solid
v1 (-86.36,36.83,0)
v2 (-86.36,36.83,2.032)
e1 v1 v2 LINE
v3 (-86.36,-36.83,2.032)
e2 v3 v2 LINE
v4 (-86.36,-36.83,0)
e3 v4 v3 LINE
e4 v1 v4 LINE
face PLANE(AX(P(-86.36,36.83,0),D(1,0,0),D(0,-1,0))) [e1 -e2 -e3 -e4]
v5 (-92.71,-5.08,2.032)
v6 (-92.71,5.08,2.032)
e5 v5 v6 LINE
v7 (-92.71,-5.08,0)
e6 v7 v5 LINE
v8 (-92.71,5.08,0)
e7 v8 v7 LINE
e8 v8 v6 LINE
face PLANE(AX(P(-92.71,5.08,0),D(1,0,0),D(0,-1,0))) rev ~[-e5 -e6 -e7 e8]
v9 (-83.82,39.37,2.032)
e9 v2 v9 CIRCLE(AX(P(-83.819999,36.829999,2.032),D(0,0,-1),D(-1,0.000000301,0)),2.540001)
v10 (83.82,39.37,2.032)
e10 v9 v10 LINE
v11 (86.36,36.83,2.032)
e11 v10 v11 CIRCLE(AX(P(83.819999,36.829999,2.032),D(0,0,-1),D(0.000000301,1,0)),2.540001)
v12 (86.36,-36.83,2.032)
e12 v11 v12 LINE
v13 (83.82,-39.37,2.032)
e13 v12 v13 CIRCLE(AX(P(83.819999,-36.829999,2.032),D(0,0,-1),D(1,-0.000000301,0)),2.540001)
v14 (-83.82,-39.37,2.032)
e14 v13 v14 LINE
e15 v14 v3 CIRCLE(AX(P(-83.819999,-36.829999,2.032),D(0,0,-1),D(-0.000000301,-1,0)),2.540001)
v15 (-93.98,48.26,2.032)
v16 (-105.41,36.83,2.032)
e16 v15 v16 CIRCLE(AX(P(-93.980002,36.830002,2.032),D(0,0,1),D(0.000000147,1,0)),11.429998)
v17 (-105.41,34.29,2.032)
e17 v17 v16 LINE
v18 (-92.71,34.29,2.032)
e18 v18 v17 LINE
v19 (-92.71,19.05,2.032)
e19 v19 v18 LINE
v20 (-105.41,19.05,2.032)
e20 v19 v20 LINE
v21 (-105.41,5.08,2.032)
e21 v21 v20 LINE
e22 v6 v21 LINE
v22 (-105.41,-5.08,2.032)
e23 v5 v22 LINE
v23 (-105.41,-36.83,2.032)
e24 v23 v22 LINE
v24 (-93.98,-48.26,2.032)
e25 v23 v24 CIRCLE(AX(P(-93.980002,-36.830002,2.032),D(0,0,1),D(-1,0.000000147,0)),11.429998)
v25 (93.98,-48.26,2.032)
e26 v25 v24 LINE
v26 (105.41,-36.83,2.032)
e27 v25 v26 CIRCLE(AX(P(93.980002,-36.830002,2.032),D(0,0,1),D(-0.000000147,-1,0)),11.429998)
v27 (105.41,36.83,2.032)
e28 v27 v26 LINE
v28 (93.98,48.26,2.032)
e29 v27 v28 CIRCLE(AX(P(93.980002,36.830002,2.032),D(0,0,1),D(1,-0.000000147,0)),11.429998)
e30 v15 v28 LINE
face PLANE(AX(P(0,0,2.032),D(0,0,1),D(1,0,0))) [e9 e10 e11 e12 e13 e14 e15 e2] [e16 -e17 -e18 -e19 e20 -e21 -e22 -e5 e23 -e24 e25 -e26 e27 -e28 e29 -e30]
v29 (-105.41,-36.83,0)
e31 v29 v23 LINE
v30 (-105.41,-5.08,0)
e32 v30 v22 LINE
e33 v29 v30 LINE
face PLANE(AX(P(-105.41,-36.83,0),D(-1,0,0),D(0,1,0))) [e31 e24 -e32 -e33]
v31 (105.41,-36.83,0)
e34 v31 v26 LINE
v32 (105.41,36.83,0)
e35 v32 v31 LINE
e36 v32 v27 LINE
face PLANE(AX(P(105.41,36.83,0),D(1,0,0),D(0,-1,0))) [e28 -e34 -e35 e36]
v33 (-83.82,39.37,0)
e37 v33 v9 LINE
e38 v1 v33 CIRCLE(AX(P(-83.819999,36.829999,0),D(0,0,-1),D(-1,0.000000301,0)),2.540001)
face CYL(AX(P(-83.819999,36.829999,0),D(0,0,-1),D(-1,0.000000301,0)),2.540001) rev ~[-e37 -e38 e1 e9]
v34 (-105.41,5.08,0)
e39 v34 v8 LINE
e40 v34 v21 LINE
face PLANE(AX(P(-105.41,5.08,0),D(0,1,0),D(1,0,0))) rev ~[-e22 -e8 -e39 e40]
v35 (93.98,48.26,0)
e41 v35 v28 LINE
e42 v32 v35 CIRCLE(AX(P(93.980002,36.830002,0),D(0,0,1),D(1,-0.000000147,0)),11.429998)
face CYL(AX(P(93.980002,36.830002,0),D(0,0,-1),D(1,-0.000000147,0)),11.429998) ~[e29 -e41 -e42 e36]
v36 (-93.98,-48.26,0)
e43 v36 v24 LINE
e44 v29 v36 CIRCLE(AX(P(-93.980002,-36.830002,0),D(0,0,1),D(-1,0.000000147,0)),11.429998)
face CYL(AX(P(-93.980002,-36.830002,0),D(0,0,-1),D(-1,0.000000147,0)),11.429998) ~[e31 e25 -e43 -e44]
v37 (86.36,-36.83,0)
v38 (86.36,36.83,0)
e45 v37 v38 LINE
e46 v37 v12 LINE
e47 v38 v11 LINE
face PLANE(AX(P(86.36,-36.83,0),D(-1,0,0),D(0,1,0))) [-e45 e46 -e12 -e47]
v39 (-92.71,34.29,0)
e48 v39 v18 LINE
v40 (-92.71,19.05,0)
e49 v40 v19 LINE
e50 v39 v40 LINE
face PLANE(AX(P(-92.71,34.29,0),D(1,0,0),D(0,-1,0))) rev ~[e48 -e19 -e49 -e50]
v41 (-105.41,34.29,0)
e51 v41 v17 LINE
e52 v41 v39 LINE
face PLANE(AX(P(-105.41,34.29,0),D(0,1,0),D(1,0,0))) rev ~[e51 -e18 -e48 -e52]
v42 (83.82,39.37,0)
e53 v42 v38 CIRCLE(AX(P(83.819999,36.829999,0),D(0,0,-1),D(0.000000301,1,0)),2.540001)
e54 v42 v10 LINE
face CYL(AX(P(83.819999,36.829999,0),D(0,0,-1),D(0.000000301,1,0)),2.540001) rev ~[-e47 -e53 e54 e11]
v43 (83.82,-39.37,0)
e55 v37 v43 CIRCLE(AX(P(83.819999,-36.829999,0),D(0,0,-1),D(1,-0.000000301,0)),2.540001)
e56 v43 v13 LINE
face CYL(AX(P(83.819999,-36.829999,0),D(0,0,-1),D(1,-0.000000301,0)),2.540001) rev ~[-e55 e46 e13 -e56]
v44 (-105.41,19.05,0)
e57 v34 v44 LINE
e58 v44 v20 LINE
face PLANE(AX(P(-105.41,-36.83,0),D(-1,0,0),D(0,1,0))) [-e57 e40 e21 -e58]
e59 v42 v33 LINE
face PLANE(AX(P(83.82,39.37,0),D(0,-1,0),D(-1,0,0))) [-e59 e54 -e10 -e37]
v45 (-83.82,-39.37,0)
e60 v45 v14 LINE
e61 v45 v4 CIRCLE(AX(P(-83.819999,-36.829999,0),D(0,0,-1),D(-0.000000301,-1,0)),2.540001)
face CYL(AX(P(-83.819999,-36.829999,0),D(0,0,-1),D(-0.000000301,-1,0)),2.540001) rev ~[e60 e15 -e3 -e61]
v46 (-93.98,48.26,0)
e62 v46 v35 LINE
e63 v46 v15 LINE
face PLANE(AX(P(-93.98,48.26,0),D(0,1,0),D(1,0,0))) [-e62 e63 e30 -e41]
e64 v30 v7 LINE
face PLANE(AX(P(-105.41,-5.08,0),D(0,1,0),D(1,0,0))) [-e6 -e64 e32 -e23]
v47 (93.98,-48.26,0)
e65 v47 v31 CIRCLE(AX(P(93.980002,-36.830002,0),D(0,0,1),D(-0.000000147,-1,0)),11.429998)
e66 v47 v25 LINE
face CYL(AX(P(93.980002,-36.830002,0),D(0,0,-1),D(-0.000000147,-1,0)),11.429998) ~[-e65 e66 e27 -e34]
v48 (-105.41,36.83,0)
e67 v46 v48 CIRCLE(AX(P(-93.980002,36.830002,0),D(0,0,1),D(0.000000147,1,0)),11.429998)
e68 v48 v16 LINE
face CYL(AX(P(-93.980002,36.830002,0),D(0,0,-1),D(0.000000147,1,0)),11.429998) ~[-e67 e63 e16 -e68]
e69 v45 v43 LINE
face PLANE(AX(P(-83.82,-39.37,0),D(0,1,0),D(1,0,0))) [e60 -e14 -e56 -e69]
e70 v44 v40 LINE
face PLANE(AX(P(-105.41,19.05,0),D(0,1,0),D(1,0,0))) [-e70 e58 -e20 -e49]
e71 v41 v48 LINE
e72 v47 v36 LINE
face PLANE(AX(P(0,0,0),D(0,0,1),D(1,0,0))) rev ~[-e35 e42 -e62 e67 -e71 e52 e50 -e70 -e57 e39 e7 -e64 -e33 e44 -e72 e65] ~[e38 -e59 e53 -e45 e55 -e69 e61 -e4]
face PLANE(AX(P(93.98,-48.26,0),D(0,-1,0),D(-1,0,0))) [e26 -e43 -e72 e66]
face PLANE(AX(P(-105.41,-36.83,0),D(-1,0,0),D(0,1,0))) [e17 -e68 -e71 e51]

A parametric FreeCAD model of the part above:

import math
import FreeCAD as App
import Part
import Sketcher

V = App.Vector
Q = App.Units.Quantity


def add_polygon(sketch, points):
    """Adds a closed chain of lines whose ends are joined by coincident constraints."""
    first, n = sketch.GeometryCount, len(points)
    for a, b in zip(points, points[1:] + points[:1]):
        sketch.addGeometry(Part.LineSegment(App.Vector(*a, 0), App.Vector(*b, 0)), False)
    for i in range(n):
        sketch.addConstraint(Sketcher.Constraint("Coincident", first + i, 2, first + (i + 1) % n, 1))

doc = App.newDocument("Part")
body = doc.addObject("PartDesign::Body", "Body")

sketch1 = body.newObject("Sketcher::SketchObject", "Sketch")
sketch1.AttachmentSupport = (doc.getObject("XY_Plane"), [""])
sketch1.MapMode = "FlatFace"
sketch1.addGeometry(Part.ArcOfCircle(Part.Circle(V(-94, 37, 0), V(0, 0, 1), 11), math.radians(90), math.radians(180)), False)
sketch1.addGeometry(Part.LineSegment(V(-105, 37, 0), V(-105, -37, 0)), False)
sketch1.addGeometry(Part.ArcOfCircle(Part.Circle(V(-94, -37, 0), V(0, 0, 1), 11), math.radians(180), math.radians(270)), False)
sketch1.addGeometry(Part.LineSegment(V(-94, -48, 0), V(94, -48, 0)), False)
sketch1.addGeometry(Part.ArcOfCircle(Part.Circle(V(94, -37, 0), V(0, 0, 1), 11), math.radians(-90), math.radians(0)), False)
sketch1.addGeometry(Part.LineSegment(V(105, -37, 0), V(105, 37, 0)), False)
sketch1.addGeometry(Part.ArcOfCircle(Part.Circle(V(94, 37, 0), V(0, 0, 1), 11), math.radians(0), math.radians(90)), False)
sketch1.addGeometry(Part.LineSegment(V(94, 48, 0), V(-94, 48, 0)), False)
sketch1.addConstraint(Sketcher.Constraint("Tangent", 0, 2, 1, 1))
sketch1.addConstraint(Sketcher.Constraint("Tangent", 1, 2, 2, 1))
sketch1.addConstraint(Sketcher.Constraint("Tangent", 2, 2, 3, 1))
sketch1.addConstraint(Sketcher.Constraint("Tangent", 3, 2, 4, 1))
sketch1.addConstraint(Sketcher.Constraint("Tangent", 4, 2, 5, 1))
sketch1.addConstraint(Sketcher.Constraint("Tangent", 5, 2, 6, 1))
sketch1.addConstraint(Sketcher.Constraint("Tangent", 6, 2, 7, 1))
sketch1.addConstraint(Sketcher.Constraint("Tangent", 7, 2, 0, 1))
sketch1.addConstraint(Sketcher.Constraint("Vertical", 1))
sketch1.addConstraint(Sketcher.Constraint("Horizontal", 3))
sketch1.addConstraint(Sketcher.Constraint("Vertical", 5))
sketch1.addConstraint(Sketcher.Constraint("Horizontal", 7))
sketch1.addConstraint(Sketcher.Constraint("Equal", 0, 2))
sketch1.addConstraint(Sketcher.Constraint("Equal", 2, 4))
sketch1.addConstraint(Sketcher.Constraint("Equal", 4, 6))
sketch1.addConstraint(Sketcher.Constraint("Symmetric", 0, 3, 4, 3, -1, 1))
sketch1.addConstraint(Sketcher.Constraint("Radius", 0, Q("0.4499999 in")))
sketch1.addConstraint(Sketcher.Constraint("DistanceX", 3, 1, 3, 2, Q("7.4 in")))
sketch1.addConstraint(Sketcher.Constraint("DistanceY", 1, 2, 1, 1, Q("2.9 in")))
pad1 = body.newObject("PartDesign::Pad", "Pad")
pad1.Profile = sketch1
pad1.Length = Q("0.08 in")

sketch2 = body.newObject("Sketcher::SketchObject", "Sketch001")
sketch2.AttachmentSupport = (doc.getObject("XY_Plane"), [""])
sketch2.MapMode = "FlatFace"
sketch2.addGeometry(Part.ArcOfCircle(Part.Circle(V(-83.8, -36.8, 0), V(0, 0, 1), 2.5), math.radians(-180), math.radians(-90)), False)
sketch2.addGeometry(Part.LineSegment(V(-86.4, -36.8, 0), V(-86.4, 36.8, 0)), False)
sketch2.addGeometry(Part.ArcOfCircle(Part.Circle(V(-83.8, 36.8, 0), V(0, 0, 1), 2.5), math.radians(90), math.radians(180)), False)
sketch2.addGeometry(Part.LineSegment(V(-83.8, 39.4, 0), V(83.8, 39.4, 0)), False)
sketch2.addGeometry(Part.ArcOfCircle(Part.Circle(V(83.8, 36.8, 0), V(0, 0, 1), 2.5), math.radians(0), math.radians(90)), False)
sketch2.addGeometry(Part.LineSegment(V(86.4, 36.8, 0), V(86.4, -36.8, 0)), False)
sketch2.addGeometry(Part.ArcOfCircle(Part.Circle(V(83.8, -36.8, 0), V(0, 0, 1), 2.5), math.radians(-90), math.radians(0)), False)
sketch2.addGeometry(Part.LineSegment(V(83.8, -39.4, 0), V(-83.8, -39.4, 0)), False)
add_polygon(sketch2, [(-105.4, -5.1), (-105.4, 5.1), (-92.7, 5.1), (-92.7, -5.1)])
add_polygon(sketch2, [(-105.4, 19.1), (-105.4, 34.3), (-92.7, 34.3), (-92.7, 19.1)])
sketch2.addConstraint(Sketcher.Constraint("Tangent", 0, 1, 1, 1))
sketch2.addConstraint(Sketcher.Constraint("Tangent", 1, 2, 2, 2))
sketch2.addConstraint(Sketcher.Constraint("Tangent", 2, 1, 3, 1))
sketch2.addConstraint(Sketcher.Constraint("Tangent", 3, 2, 4, 2))
sketch2.addConstraint(Sketcher.Constraint("Tangent", 4, 1, 5, 1))
sketch2.addConstraint(Sketcher.Constraint("Tangent", 5, 2, 6, 2))
sketch2.addConstraint(Sketcher.Constraint("Tangent", 6, 1, 7, 1))
sketch2.addConstraint(Sketcher.Constraint("Tangent", 7, 2, 0, 2))
sketch2.addConstraint(Sketcher.Constraint("Vertical", 1))
sketch2.addConstraint(Sketcher.Constraint("Horizontal", 3))
sketch2.addConstraint(Sketcher.Constraint("Vertical", 5))
sketch2.addConstraint(Sketcher.Constraint("Horizontal", 7))
sketch2.addConstraint(Sketcher.Constraint("Vertical", 8))
sketch2.addConstraint(Sketcher.Constraint("Horizontal", 9))
sketch2.addConstraint(Sketcher.Constraint("Vertical", 10))
sketch2.addConstraint(Sketcher.Constraint("Horizontal", 11))
sketch2.addConstraint(Sketcher.Constraint("Vertical", 12))
sketch2.addConstraint(Sketcher.Constraint("Horizontal", 13))
sketch2.addConstraint(Sketcher.Constraint("Vertical", 14))
sketch2.addConstraint(Sketcher.Constraint("Horizontal", 15))
sketch2.addConstraint(Sketcher.Constraint("Equal", 0, 2))
sketch2.addConstraint(Sketcher.Constraint("Equal", 2, 4))
sketch2.addConstraint(Sketcher.Constraint("Equal", 4, 6))
sketch2.addConstraint(Sketcher.Constraint("Symmetric", 0, 3, 4, 3, -1, 1))
sketch2.addConstraint(Sketcher.Constraint("Vertical", 11, 2, 12, 2))
sketch2.addConstraint(Sketcher.Constraint("Vertical", 10, 2, 13, 2))
sketch2.addConstraint(Sketcher.Constraint("Radius", 0, Q("0.1 in")))
sketch2.addConstraint(Sketcher.Constraint("DistanceX", 3, 1, 3, 2, Q("6.6 in")))
sketch2.addConstraint(Sketcher.Constraint("DistanceX", 9, 1, 9, 2, Q("0.5 in")))
sketch2.addConstraint(Sketcher.Constraint("DistanceY", 1, 1, 1, 2, Q("2.9 in")))
sketch2.addConstraint(Sketcher.Constraint("DistanceY", 8, 1, 8, 2, Q("0.4 in")))
sketch2.addConstraint(Sketcher.Constraint("DistanceY", 12, 1, 12, 2, Q("0.6 in")))
sketch2.addConstraint(Sketcher.Constraint("DistanceY", -1, 1, 8, 2, Q("0.2 in")))
sketch2.addConstraint(Sketcher.Constraint("DistanceY", 12, 2, 1, 2, Q("0.1 in")))
sketch2.addConstraint(Sketcher.Constraint("DistanceX", 8, 2, -1, 1, Q("4.15 in")))
pocket1 = body.newObject("PartDesign::Pocket", "Pocket")
pocket1.Profile = sketch2
pocket1.Length = Q("0.197 in")
pocket1.Reversed = True

doc.recompute()
